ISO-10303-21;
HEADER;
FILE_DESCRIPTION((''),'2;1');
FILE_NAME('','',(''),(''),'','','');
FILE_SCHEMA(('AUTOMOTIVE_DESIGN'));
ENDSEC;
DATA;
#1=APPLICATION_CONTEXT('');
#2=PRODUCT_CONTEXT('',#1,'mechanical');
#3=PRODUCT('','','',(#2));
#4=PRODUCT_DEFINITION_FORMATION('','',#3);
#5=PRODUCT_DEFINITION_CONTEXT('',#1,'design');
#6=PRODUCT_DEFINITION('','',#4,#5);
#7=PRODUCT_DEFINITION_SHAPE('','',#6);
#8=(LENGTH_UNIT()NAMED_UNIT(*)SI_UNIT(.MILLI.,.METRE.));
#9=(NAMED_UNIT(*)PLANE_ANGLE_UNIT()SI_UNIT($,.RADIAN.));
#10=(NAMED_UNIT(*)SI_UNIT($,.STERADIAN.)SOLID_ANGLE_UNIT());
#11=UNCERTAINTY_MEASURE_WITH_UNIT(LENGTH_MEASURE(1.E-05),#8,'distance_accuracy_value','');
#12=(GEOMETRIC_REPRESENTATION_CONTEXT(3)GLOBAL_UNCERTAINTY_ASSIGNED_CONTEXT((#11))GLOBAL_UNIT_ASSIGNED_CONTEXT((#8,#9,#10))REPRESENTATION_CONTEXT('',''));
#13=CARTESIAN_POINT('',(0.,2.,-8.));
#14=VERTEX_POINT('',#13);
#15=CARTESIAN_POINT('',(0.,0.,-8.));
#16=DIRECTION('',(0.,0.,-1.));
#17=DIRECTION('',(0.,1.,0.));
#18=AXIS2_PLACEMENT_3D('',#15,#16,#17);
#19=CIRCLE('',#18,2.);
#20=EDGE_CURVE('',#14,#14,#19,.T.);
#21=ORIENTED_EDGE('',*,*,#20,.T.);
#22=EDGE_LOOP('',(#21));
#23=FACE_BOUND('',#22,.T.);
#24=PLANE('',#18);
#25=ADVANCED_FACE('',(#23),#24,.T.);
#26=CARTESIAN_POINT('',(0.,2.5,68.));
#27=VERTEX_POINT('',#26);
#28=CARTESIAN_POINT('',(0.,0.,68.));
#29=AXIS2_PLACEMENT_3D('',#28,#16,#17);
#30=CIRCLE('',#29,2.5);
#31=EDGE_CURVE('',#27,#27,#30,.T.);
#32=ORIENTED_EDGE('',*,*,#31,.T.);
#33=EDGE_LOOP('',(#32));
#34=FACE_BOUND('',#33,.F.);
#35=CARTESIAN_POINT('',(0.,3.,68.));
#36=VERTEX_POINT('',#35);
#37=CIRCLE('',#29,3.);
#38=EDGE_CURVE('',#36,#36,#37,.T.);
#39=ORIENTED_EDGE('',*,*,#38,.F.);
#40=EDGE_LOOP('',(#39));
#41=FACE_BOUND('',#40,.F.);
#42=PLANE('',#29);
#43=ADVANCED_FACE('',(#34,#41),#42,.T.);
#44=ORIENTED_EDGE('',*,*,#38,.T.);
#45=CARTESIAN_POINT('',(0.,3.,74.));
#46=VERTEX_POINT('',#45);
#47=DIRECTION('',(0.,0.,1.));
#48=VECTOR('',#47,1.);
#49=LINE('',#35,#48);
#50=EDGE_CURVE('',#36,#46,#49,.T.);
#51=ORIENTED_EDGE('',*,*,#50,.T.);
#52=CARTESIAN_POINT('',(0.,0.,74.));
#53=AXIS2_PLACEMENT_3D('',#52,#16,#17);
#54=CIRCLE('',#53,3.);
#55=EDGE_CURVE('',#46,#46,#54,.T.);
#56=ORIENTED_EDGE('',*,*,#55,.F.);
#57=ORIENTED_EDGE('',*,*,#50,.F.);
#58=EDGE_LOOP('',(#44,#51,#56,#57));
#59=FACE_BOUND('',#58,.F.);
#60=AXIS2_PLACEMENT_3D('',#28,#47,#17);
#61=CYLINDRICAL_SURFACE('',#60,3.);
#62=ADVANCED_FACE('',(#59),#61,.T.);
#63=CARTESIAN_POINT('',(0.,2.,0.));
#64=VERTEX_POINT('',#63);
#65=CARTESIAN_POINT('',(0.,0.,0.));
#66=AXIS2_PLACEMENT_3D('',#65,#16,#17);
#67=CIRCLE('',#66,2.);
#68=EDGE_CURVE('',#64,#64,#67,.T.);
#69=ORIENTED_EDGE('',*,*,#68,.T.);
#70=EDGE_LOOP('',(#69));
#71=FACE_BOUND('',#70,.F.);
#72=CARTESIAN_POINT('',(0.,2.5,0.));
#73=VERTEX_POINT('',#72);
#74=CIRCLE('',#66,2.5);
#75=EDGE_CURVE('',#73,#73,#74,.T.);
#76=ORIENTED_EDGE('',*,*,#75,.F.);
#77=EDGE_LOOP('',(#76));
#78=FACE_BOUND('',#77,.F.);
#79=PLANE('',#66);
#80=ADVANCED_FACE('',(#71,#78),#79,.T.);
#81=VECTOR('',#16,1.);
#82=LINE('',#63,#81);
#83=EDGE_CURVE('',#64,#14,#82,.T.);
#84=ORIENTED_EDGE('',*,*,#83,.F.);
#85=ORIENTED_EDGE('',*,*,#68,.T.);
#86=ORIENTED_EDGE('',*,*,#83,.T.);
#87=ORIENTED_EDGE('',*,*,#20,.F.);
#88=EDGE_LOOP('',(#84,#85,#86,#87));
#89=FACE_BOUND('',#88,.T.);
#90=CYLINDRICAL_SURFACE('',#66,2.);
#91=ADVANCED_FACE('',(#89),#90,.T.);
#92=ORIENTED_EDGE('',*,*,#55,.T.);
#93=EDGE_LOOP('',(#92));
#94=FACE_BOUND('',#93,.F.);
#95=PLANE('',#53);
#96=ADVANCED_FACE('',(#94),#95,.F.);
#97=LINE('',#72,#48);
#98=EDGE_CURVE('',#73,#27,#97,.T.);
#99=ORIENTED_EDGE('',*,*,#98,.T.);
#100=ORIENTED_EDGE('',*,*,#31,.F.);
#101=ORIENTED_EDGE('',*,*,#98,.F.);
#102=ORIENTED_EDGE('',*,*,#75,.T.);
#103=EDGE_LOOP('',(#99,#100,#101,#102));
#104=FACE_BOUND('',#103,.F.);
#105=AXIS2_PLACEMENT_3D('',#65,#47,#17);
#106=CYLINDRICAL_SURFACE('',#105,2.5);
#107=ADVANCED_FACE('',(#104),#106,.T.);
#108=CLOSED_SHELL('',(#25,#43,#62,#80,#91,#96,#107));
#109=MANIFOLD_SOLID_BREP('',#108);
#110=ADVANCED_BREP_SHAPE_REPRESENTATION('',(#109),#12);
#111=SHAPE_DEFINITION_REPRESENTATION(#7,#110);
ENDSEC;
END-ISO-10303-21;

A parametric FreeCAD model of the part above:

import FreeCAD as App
import Part
import Sketcher


def add_polygon(sketch, points):
    """Adds a closed chain of lines whose ends are joined by coincident constraints."""
    first, n = sketch.GeometryCount, len(points)
    for a, b in zip(points, points[1:] + points[:1]):
        sketch.addGeometry(Part.LineSegment(App.Vector(*a, 0), App.Vector(*b, 0)), False)
    for i in range(n):
        sketch.addConstraint(Sketcher.Constraint("Coincident", first + i, 2, first + (i + 1) % n, 1))

doc = App.newDocument("Part")
body = doc.addObject("PartDesign::Body", "Body")

# Sketch on YZ plane
sketch1 = doc.addObject("Sketcher::SketchObject", "Sketch")
body.addObject(sketch1)
sketch1.AttachmentSupport = (doc.YZ_Plane, [""])
sketch1.MapMode = "FlatFace"
add_polygon(sketch1, [(0, -8), (2, -8), (2, 0), (2.5, 0), (2.5, 68), (3, 68), (3, 74), (0, 74)])  # lines 0-7
sketch1.addConstraint(Sketcher.Constraint("Horizontal", 0))
sketch1.addConstraint(Sketcher.Constraint("Vertical", 1))
sketch1.addConstraint(Sketcher.Constraint("Horizontal", 2))
sketch1.addConstraint(Sketcher.Constraint("Vertical", 3))
sketch1.addConstraint(Sketcher.Constraint("Horizontal", 4))
sketch1.addConstraint(Sketcher.Constraint("Vertical", 5))
sketch1.addConstraint(Sketcher.Constraint("Horizontal", 6))
sketch1.addConstraint(Sketcher.Constraint("Vertical", 7))
sketch1.addConstraint(Sketcher.Constraint("PointOnObject", 1, 2, -1))
sketch1.addConstraint(Sketcher.Constraint("PointOnObject", 6, 2, -2))
sketch1.addConstraint(Sketcher.Constraint("Equal", 2, 4))
sketch1.addConstraint(Sketcher.Constraint("DistanceX", 0, 1, 0, 2, 2.0))
sketch1.addConstraint(Sketcher.Constraint("DistanceX", 6, 2, 6, 1, 3.0))
sketch1.addConstraint(Sketcher.Constraint("DistanceY", 1, 1, 1, 2, 8.0))
sketch1.addConstraint(Sketcher.Constraint("DistanceY", 5, 1, 5, 2, 6.0))
sketch1.addConstraint(Sketcher.Constraint("DistanceY", 7, 2, 7, 1, 82.0))
revolution = doc.addObject("PartDesign::Revolution", "Revolution")
body.addObject(revolution)
revolution.Profile = sketch1
revolution.ReferenceAxis = (sketch1, ["V_Axis"])
revolution.Angle = 360

doc.recompute()
